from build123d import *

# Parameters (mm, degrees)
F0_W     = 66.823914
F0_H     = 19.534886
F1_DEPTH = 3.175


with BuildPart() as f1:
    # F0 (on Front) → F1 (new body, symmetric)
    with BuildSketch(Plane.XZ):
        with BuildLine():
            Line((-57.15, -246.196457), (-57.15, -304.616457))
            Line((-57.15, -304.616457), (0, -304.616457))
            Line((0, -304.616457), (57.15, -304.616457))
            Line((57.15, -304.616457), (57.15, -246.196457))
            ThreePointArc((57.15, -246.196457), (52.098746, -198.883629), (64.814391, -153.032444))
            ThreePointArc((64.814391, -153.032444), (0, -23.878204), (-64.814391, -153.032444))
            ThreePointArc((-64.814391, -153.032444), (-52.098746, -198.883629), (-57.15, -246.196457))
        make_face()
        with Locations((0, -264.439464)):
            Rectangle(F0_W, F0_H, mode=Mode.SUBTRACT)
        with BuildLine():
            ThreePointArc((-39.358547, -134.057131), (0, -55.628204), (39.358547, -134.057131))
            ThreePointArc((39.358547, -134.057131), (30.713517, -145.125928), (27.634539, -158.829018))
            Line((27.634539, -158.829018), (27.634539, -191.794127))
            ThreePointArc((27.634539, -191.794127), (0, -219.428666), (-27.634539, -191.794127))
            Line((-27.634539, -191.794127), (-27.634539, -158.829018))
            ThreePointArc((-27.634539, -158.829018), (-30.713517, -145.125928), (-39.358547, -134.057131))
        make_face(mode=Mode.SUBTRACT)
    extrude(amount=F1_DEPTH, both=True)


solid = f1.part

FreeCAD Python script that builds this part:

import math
import FreeCAD as App
import Part
import Sketcher

V = App.Vector
Q = App.Units.Quantity

doc = App.newDocument("Part")
body = doc.addObject("PartDesign::Body", "Body")

# Sketch on XZ plane
sketch1 = body.newObject("Sketcher::SketchObject", "Sketch")
sketch1.AttachmentSupport = (doc.getObject("XZ_Plane"), [""])
sketch1.MapMode = "FlatFace"
sketch1.addGeometry([
    Part.LineSegment(V(-57, -246, 0), V(-57, -305, 0)),  # 0
    Part.LineSegment(V(-57, -305, 0), V(57, -305, 0)),  # 1
    Part.LineSegment(V(57, -305, 0), V(57, -246, 0)),  # 2
    Part.ArcOfCircle(Part.Circle(V(179, -209, 0), V(0, 0, 1), 127), math.radians(154), math.radians(197)),  # 3
    Part.ArcOfCircle(Part.Circle(V(0, -105, 0), V(0, 0, 1), 81), math.radians(-37), math.radians(217)),  # 4
    Part.ArcOfCircle(Part.Circle(V(-179, -209, 0), V(0, 0, 1), 127), math.radians(-17), math.radians(26)),  # 5
    Part.LineSegment(V(33, -274, 0), V(-33, -274, 0)),  # 6
    Part.LineSegment(V(-33, -274, 0), V(-33, -255, 0)),  # 7
    Part.LineSegment(V(-33, -255, 0), V(33, -255, 0)),  # 8
    Part.LineSegment(V(33, -255, 0), V(33, -274, 0)),  # 9
    Part.ArcOfCircle(Part.Circle(V(-60, -159, 0), V(0, 0, 1), 32), math.radians(0), math.radians(51)),  # 10
    Part.ArcOfCircle(Part.Circle(V(0, -105, 0), V(0, 0, 1), 49), math.radians(-37), math.radians(217)),  # 11
    Part.ArcOfCircle(Part.Circle(V(60, -159, 0), V(0, 0, 1), 32), math.radians(129), math.radians(180)),  # 12
    Part.LineSegment(V(28, -159, 0), V(28, -192, 0)),  # 13
    Part.ArcOfCircle(Part.Circle(V(0, -192, 0), V(0, 0, 1), 28), math.radians(180), math.radians(360)),  # 14
    Part.LineSegment(V(-28, -192, 0), V(-28, -159, 0)),  # 15
], False)
sketch1.addConstraint([
    Sketcher.Constraint("Coincident", 0, 2, 1, 1),
    Sketcher.Constraint("Coincident", 1, 2, 2, 1),
    Sketcher.Constraint("Coincident", 2, 2, 3, 2),
    Sketcher.Constraint("Coincident", 3, 1, 4, 1),
    Sketcher.Constraint("Coincident", 4, 2, 5, 2),
    Sketcher.Constraint("Coincident", 5, 1, 0, 1),
    Sketcher.Constraint("Coincident", 6, 2, 7, 1),
    Sketcher.Constraint("Coincident", 7, 2, 8, 1),
    Sketcher.Constraint("Coincident", 8, 2, 9, 1),
    Sketcher.Constraint("Coincident", 9, 2, 6, 1),
    Sketcher.Constraint("Coincident", 10, 2, 11, 2),
    Sketcher.Constraint("Coincident", 11, 1, 12, 1),
    Sketcher.Constraint("Tangent", 12, 2, 13, 1),
    Sketcher.Constraint("Tangent", 13, 2, 14, 2),
    Sketcher.Constraint("Tangent", 14, 1, 15, 1),
    Sketcher.Constraint("Tangent", 15, 2, 10, 1),
    Sketcher.Constraint("Vertical", 0),
    Sketcher.Constraint("Horizontal", 1),
    Sketcher.Constraint("Vertical", 2),
    Sketcher.Constraint("Horizontal", 6),
    Sketcher.Constraint("Vertical", 7),
    Sketcher.Constraint("Horizontal", 8),
    Sketcher.Constraint("Vertical", 9),
    Sketcher.Constraint("Vertical", 13),
    Sketcher.Constraint("Vertical", 15),
    Sketcher.Constraint("Coincident", 11, 3, 4, 3),
    Sketcher.Constraint("Equal", 3, 5),
    Sketcher.Constraint("Equal", 10, 12),
    Sketcher.Constraint("Symmetric", 3, 3, 5, 3, -2),
    Sketcher.Constraint("Symmetric", 10, 3, 12, 3, -2),
    Sketcher.Constraint("PointOnObject", 4, 3, -2),
    Sketcher.Constraint("Horizontal", 2, 2, 5, 1),
    Sketcher.Constraint("DistanceX", 1, 1, 1, 2, Q("4.5 in")),
    Sketcher.Constraint("DistanceY", 0, 2, 0, 1, Q("2.3 in")),
    Sketcher.Constraint("DistanceY", 0, 2, 11, 3, Q("7.87 in")),
    Sketcher.Constraint("Radius", 14, Q("27.634539 mm")),
    Sketcher.Constraint("Radius", 3, Q("126.999995 mm")),
    Sketcher.Constraint("Radius", 4, Q("80.840253 mm")),
    Sketcher.Constraint("Radius", 10, Q("32.032506 mm")),
    Sketcher.Constraint("Radius", 11, Q("49.090253 mm")),
    Sketcher.Constraint("DistanceY", 13, 2, 13, 1, Q("32.965109 mm")),
    Sketcher.Constraint("DistanceX", 5, 3, 10, 3, Q("119.004098 mm")),
    Sketcher.Constraint("DistanceX", 10, 3, 10, 2, Q("20.308498 mm")),
    Sketcher.Constraint("DistanceX", 6, 2, 6, 1, Q("66.823914 mm")),
    Sketcher.Constraint("DistanceY", 7, 1, 7, 2, Q("19.534886 mm")),
    Sketcher.Constraint("DistanceY", 3, 3, -1, 1, Q("209.296452 mm")),
    Sketcher.Constraint("DistanceY", 7, 2, -1, 1, Q("254.672021 mm")),
    Sketcher.Constraint("DistanceX", 6, 2, -1, 1, Q("33.411957 mm")),
])
pad1 = body.newObject("PartDesign::Pad", "Pad")
pad1.Profile = sketch1
pad1.Length = Q("0.25 in")
pad1.Midplane = True

doc.recompute()
